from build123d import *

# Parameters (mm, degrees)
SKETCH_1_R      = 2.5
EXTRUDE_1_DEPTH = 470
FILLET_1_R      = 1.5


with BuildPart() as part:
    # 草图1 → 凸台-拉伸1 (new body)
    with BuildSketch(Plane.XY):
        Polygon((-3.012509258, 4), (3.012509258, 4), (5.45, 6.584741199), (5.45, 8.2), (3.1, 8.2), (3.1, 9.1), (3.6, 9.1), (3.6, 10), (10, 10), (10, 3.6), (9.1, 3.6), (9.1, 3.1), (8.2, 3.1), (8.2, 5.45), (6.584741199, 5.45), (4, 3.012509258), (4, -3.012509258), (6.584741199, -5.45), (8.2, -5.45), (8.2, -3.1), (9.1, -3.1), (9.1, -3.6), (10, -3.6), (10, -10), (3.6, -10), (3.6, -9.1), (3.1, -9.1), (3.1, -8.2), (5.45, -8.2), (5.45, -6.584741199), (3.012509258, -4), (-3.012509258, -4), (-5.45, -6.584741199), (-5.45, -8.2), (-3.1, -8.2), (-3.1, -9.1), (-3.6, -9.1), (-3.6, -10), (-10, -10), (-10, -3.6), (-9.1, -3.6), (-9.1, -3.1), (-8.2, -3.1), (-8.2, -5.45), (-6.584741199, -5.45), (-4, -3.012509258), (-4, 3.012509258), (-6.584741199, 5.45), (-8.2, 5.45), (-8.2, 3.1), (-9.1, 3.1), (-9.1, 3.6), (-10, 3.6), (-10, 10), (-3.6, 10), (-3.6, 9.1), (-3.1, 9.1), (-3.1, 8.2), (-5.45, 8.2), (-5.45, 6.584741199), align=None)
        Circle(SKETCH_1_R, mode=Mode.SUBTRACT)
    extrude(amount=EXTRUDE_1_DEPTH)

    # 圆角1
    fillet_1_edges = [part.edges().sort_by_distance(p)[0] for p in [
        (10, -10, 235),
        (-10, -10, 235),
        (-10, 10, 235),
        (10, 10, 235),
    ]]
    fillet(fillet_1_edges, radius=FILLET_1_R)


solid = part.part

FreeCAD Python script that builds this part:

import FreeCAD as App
import Part
import Sketcher
Q = App.Units.Quantity


def edges_at(feature, points):
    """Names of the edges that pass closest to the given points."""
    edges = feature.Shape.Edges
    near = lambda p: min(range(len(edges)), key=lambda i: edges[i].distToShape(Part.Vertex(*p))[0])
    return sorted({f"Edge{near(p) + 1}" for p in points})


def add_polygon(sketch, points):
    """Adds a closed chain of lines whose ends are joined by coincident constraints."""
    first, n = sketch.GeometryCount, len(points)
    for a, b in zip(points, points[1:] + points[:1]):
        sketch.addGeometry(Part.LineSegment(App.Vector(*a, 0), App.Vector(*b, 0)), False)
    for i in range(n):
        sketch.addConstraint(Sketcher.Constraint("Coincident", first + i, 2, first + (i + 1) % n, 1))

doc = App.newDocument("Part")
params = doc.addObject("Spreadsheet::Sheet", "Params")
for row, (alias, value) in enumerate([
    ("sketch1_diameter", "5 mm"),
    ("sketch1_width", "0.5 mm"),
    ("sketch1_width2", "6.4 mm"),
    ("sketch1_width3", "0.9 mm"),
    ("sketch1_width4", "2.35 mm"),
    ("pad1_length", "470 mm"),
    ("fillet_radius", "1.5 mm"),
], start=1):
    params.set(f"A{row}", alias)
    params.set(f"B{row}", "=" + value)
    params.setAlias(f"B{row}", alias)

body = doc.addObject("PartDesign::Body", "Body")

sketch1 = doc.addObject("Sketcher::SketchObject", "Sketch")
body.addObject(sketch1)
sketch1.AttachmentSupport = (doc.XY_Plane, [""])
sketch1.MapMode = "FlatFace"
add_polygon(sketch1, [(3, 4), (-3, 4), (-5.5, 6.6), (-5.5, 8.2), (-3.1, 8.2), (-3.1, 9.1), (-3.6, 9.1), (-3.6, 10), (-10, 10), (-10, 3.6), (-9.1, 3.6), (-9.1, 3.1), (-8.2, 3.1), (-8.2, 5.5), (-6.6, 5.5), (-4, 3), (-4, -3), (-6.6, -5.5), (-8.2, -5.5), (-8.2, -3.1), (-9.1, -3.1), (-9.1, -3.6), (-10, -3.6), (-10, -10), (-3.6, -10), (-3.6, -9.1), (-3.1, -9.1), (-3.1, -8.2), (-5.5, -8.2), (-5.5, -6.6), (-3, -4), (3, -4), (5.5, -6.6), (5.5, -8.2), (3.1, -8.2), (3.1, -9.1), (3.6, -9.1), (3.6, -10), (10, -10), (10, -3.6), (9.1, -3.6), (9.1, -3.1), (8.2, -3.1), (8.2, -5.5), (6.6, -5.5), (4, -3), (4, 3), (6.6, 5.5), (8.2, 5.5), (8.2, 3.1), (9.1, 3.1), (9.1, 3.6), (10, 3.6), (10, 10), (3.6, 10), (3.6, 9.1), (3.1, 9.1), (3.1, 8.2), (5.5, 8.2), (5.5, 6.6)])
sketch1.addGeometry(Part.Circle(App.Vector(0, 0, 0), App.Vector(0, 0, 1), 2.5), False)
sketch1.addConstraint([
    Sketcher.Constraint("Horizontal", 0),
    Sketcher.Constraint("Vertical", 2),
    Sketcher.Constraint("Horizontal", 3),
    Sketcher.Constraint("Vertical", 4),
    Sketcher.Constraint("Horizontal", 5),
    Sketcher.Constraint("Vertical", 6),
    Sketcher.Constraint("Horizontal", 7),
    Sketcher.Constraint("Vertical", 8),
    Sketcher.Constraint("Horizontal", 9),
    Sketcher.Constraint("Vertical", 10),
    Sketcher.Constraint("Horizontal", 11),
    Sketcher.Constraint("Vertical", 12),
    Sketcher.Constraint("Horizontal", 13),
    Sketcher.Constraint("Vertical", 15),
    Sketcher.Constraint("Horizontal", 17),
    Sketcher.Constraint("Vertical", 18),
    Sketcher.Constraint("Horizontal", 19),
    Sketcher.Constraint("Vertical", 20),
    Sketcher.Constraint("Horizontal", 21),
    Sketcher.Constraint("Vertical", 22),
    Sketcher.Constraint("Horizontal", 23),
    Sketcher.Constraint("Vertical", 24),
    Sketcher.Constraint("Horizontal", 25),
    Sketcher.Constraint("Vertical", 26),
    Sketcher.Constraint("Horizontal", 27),
    Sketcher.Constraint("Vertical", 28),
    Sketcher.Constraint("Horizontal", 30),
    Sketcher.Constraint("Vertical", 32),
    Sketcher.Constraint("Horizontal", 33),
    Sketcher.Constraint("Vertical", 34),
    Sketcher.Constraint("Horizontal", 35),
    Sketcher.Constraint("Vertical", 36),
    Sketcher.Constraint("Horizontal", 37),
    Sketcher.Constraint("Vertical", 38),
    Sketcher.Constraint("Horizontal", 39),
    Sketcher.Constraint("Vertical", 40),
    Sketcher.Constraint("Horizontal", 41),
    Sketcher.Constraint("Vertical", 42),
    Sketcher.Constraint("Horizontal", 43),
    Sketcher.Constraint("Vertical", 45),
    Sketcher.Constraint("Horizontal", 47),
    Sketcher.Constraint("Vertical", 48),
    Sketcher.Constraint("Horizontal", 49),
    Sketcher.Constraint("Vertical", 50),
    Sketcher.Constraint("Horizontal", 51),
    Sketcher.Constraint("Vertical", 52),
    Sketcher.Constraint("Horizontal", 53),
    Sketcher.Constraint("Vertical", 54),
    Sketcher.Constraint("Horizontal", 55),
    Sketcher.Constraint("Vertical", 56),
    Sketcher.Constraint("Horizontal", 57),
    Sketcher.Constraint("Vertical", 58),
    Sketcher.Constraint("Coincident", 60, 3, -1, 1),
    Sketcher.Constraint("Symmetric", 0, 2, 30, 2, -1, 1),
    Sketcher.Constraint("Symmetric", 1, 2, 31, 2, -1, 1),
    Sketcher.Constraint("Symmetric", 3, 2, 33, 2, -1, 1),
    Sketcher.Constraint("Symmetric", 5, 2, 35, 2, -1, 1),
    Sketcher.Constraint("Symmetric", 7, 2, 37, 2, -1, 1),
    Sketcher.Constraint("Symmetric", 9, 2, 39, 2, -1, 1),
    Sketcher.Constraint("Symmetric", 11, 2, 41, 2, -1, 1),
    Sketcher.Constraint("Symmetric", 13, 2, 43, 2, -1, 1),
    Sketcher.Constraint("Symmetric", 14, 2, 44, 2, -1, 1),
    Sketcher.Constraint("Symmetric", 16, 2, 46, 2, -1, 1),
    Sketcher.Constraint("Symmetric", 18, 2, 48, 2, -1, 1),
    Sketcher.Constraint("Symmetric", 20, 2, 50, 2, -1, 1),
    Sketcher.Constraint("Symmetric", 22, 2, 52, 2, -1, 1),
    Sketcher.Constraint("Symmetric", 24, 2, 54, 2, -1, 1),
    Sketcher.Constraint("Symmetric", 26, 2, 56, 2, -1, 1),
    Sketcher.Constraint("Symmetric", 28, 2, 58, 2, -1, 1),
    Sketcher.Constraint("Symmetric", 28, 2, 31, 2, -2),
    Sketcher.Constraint("Symmetric", 26, 2, 33, 2, -2),
    Sketcher.Constraint("Symmetric", 24, 2, 35, 2, -2),
    Sketcher.Constraint("Symmetric", 22, 2, 37, 2, -2),
    Sketcher.Constraint("Symmetric", 20, 2, 39, 2, -2),
    Sketcher.Constraint("Symmetric", 18, 2, 41, 2, -2),
    Sketcher.Constraint("Symmetric", 16, 2, 43, 2, -2),
    Sketcher.Constraint("Perpendicular", 1, 16),
    Sketcher.Constraint("Perpendicular", 14, 29),
    Sketcher.Constraint("Perpendicular", 31, 46),
    Sketcher.Constraint("Perpendicular", 44, 59),
    Sketcher.Constraint("Horizontal", 15, 2, 44, 2),
    Sketcher.Constraint("Equal", 9, 11),
    Sketcher.Constraint("Equal", 47, 2),
    Sketcher.Constraint("Equal", 51, 4),
    Sketcher.Constraint("Equal", 4, 6),
    Sketcher.Constraint("Equal", 53, 8),
    Sketcher.Constraint("Equal", 55, 10),
    Sketcher.Constraint("Equal", 57, 12),
    Sketcher.Constraint("Equal", 30, 15),
    Sketcher.Constraint("Equal", 1, 14),
    Sketcher.Constraint("Diameter", 60, Q("5 mm")),
    Sketcher.Constraint("DistanceX", 5, 2, 5, 1, Q("0.5 mm")),
    Sketcher.Constraint("DistanceX", 7, 2, 7, 1, Q("6.4 mm")),
    Sketcher.Constraint("DistanceX", 9, 1, 9, 2, Q("0.9 mm")),
    Sketcher.Constraint("DistanceY", -1, 1, 0, 2, Q("4 mm")),
    Sketcher.Constraint("DistanceY", -1, 1, 6, 2, Q("10 mm")),
    Sketcher.Constraint("DistanceX", 3, 1, 3, 2, Q("2.35 mm")),
    Sketcher.Constraint("DistanceX", 0, 2, 0, 1, Q("6.025019 mm")),
    Sketcher.Constraint("DistanceX", 13, 1, 13, 2, Q("1.615259 mm")),
])
sketch1.setExpression("Constraints[150]", "Params.sketch1_diameter")
sketch1.setExpression("Constraints[151]", "Params.sketch1_width")
sketch1.setExpression("Constraints[152]", "Params.sketch1_width2")
sketch1.setExpression("Constraints[153]", "Params.sketch1_width3")
sketch1.setExpression("Constraints[156]", "Params.sketch1_width4")
pad1 = doc.addObject("PartDesign::Pad", "Pad")
body.addObject(pad1)
pad1.Profile = sketch1
pad1.setExpression("Length", "Params.pad1_length")
doc.recompute()

fillet = doc.addObject("PartDesign::Fillet", "Fillet")
body.addObject(fillet)
fillet.Base = (pad1, edges_at(pad1, [
    (10, -10, 235),
    (-10, -10, 235),
    (-10, 10, 235),
    (10, 10, 235),
]))
fillet.setExpression("Radius", "Params.fillet_radius")

doc.recompute()
